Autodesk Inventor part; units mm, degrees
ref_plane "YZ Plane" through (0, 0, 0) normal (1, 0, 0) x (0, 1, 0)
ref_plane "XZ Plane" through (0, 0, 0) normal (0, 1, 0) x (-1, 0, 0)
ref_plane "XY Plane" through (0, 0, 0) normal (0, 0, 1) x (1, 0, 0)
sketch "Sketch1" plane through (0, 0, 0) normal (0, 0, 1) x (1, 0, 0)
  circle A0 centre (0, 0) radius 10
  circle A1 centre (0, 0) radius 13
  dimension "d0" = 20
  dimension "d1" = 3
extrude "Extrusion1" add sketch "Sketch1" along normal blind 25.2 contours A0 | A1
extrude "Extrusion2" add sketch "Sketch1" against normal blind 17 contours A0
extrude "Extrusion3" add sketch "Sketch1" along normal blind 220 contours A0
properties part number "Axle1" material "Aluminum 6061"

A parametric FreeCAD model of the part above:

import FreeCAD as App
import Part
import Sketcher

doc = App.newDocument("Part")
body = doc.addObject("PartDesign::Body", "Body")

# Sketch on XY plane
sketch1 = doc.addObject("Sketcher::SketchObject", "Sketch")
body.addObject(sketch1)
sketch1.AttachmentSupport = (doc.XY_Plane, [""])
sketch1.MapMode = "FlatFace"
sketch1.addGeometry(Part.Circle(App.Vector(0, 0, 0), App.Vector(0, 0, 1), 13), False)
sketch1.addConstraint(Sketcher.Constraint("Coincident", 0, 3, -1, 1))
sketch1.addConstraint(Sketcher.Constraint("Diameter", 0, 26.0))
pad1 = doc.addObject("PartDesign::Pad", "Pad")
body.addObject(pad1)
pad1.Profile = sketch1
pad1.Length = 25.2

# Sketch on XY plane
sketch2 = doc.addObject("Sketcher::SketchObject", "Sketch001")
body.addObject(sketch2)
sketch2.AttachmentSupport = (doc.XY_Plane, [""])
sketch2.MapMode = "FlatFace"
sketch2.addGeometry(Part.Circle(App.Vector(0, 0, 0), App.Vector(0, 0, 1), 10), False)
sketch2.addConstraint(Sketcher.Constraint("Coincident", 0, 3, -1, 1))
sketch2.addConstraint(Sketcher.Constraint("Diameter", 0, 20.0))
pad2 = doc.addObject("PartDesign::Pad", "Pad001")
body.addObject(pad2)
pad2.Profile = sketch2
pad2.Length = 17
pad2.Reversed = True

# Sketch on XY plane
sketch3 = doc.addObject("Sketcher::SketchObject", "Sketch002")
body.addObject(sketch3)
sketch3.AttachmentSupport = (doc.XY_Plane, [""])
sketch3.MapMode = "FlatFace"
sketch3.addGeometry(Part.Circle(App.Vector(0, 0, 0), App.Vector(0, 0, 1), 10), False)
sketch3.addConstraint(Sketcher.Constraint("Coincident", 0, 3, -1, 1))
sketch3.addConstraint(Sketcher.Constraint("Diameter", 0, 20.0))
pad3 = doc.addObject("PartDesign::Pad", "Pad002")
body.addObject(pad3)
pad3.Profile = sketch3
pad3.Length = 220

doc.recompute()
